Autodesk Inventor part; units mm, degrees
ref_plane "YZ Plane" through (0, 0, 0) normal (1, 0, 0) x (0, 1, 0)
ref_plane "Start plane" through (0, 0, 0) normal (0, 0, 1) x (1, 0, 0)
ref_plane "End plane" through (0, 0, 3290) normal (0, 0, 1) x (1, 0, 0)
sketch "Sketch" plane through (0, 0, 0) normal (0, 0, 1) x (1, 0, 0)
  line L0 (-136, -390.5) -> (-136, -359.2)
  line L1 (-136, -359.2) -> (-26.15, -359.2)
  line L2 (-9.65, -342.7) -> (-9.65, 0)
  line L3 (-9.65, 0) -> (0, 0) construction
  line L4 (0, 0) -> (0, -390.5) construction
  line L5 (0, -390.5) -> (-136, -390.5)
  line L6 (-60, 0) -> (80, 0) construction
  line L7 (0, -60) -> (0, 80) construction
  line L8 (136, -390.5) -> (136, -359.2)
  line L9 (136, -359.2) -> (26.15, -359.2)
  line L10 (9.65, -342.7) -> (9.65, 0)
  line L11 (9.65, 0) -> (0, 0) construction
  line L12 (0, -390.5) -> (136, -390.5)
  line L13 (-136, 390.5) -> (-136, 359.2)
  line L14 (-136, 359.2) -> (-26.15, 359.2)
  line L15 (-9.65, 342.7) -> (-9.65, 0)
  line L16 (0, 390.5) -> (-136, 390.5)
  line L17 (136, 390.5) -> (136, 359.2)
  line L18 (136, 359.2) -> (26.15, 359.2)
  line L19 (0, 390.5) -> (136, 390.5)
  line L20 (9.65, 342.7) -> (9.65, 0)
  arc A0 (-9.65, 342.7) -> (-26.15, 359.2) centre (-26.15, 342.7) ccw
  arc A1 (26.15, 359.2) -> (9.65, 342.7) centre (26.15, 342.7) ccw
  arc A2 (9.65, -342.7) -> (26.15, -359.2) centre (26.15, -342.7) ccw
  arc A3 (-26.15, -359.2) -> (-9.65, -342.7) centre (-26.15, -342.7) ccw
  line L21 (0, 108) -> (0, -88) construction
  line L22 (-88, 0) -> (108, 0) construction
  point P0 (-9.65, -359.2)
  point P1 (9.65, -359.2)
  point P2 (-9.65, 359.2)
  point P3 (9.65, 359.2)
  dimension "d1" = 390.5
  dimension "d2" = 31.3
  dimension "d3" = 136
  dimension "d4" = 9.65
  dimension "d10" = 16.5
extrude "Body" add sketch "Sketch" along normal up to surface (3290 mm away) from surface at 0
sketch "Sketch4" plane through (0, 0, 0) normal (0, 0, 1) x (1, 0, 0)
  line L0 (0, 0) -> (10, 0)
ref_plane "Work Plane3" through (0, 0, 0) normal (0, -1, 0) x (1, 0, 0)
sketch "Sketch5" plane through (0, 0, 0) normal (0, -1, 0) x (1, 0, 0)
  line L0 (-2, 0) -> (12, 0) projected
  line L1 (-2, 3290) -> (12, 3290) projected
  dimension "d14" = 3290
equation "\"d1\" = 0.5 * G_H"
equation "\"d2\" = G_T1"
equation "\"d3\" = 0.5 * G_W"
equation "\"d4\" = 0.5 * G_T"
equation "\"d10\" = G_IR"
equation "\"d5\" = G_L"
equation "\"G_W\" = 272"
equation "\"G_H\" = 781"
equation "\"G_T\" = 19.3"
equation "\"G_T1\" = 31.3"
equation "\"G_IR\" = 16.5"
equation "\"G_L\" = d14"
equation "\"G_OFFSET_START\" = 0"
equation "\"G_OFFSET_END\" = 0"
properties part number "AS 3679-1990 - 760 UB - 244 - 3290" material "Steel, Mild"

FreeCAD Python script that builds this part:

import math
import FreeCAD as App
import Part
import Sketcher
from FreeCAD import Vector

doc = App.newDocument("Part")
body = doc.addObject("PartDesign::Body", "Body")

# Sketch on XY plane
sketch1 = body.newObject("Sketcher::SketchObject", "Sketch")
sketch1.AttachmentSupport = (doc.getObject("XY_Plane"), [""])
sketch1.MapMode = "FlatFace"
sketch1.addGeometry([
    Part.LineSegment(Vector(-136, -359.2, 0), Vector(-136, -390.5, 0)),  # 0
    Part.LineSegment(Vector(-136, -390.5, 0), Vector(136, -390.5, 0)),  # 1
    Part.LineSegment(Vector(136, -390.5, 0), Vector(136, -359.2, 0)),  # 2
    Part.LineSegment(Vector(136, -359.2, 0), Vector(26.15, -359.2, 0)),  # 3
    Part.ArcOfCircle(Part.Circle(Vector(26.15, -342.7, 0), Vector(0, 0, 1), 16.5), math.radians(180), math.radians(270)),  # 4
    Part.LineSegment(Vector(9.65, -342.7, 0), Vector(9.65, 342.7, 0)),  # 5
    Part.ArcOfCircle(Part.Circle(Vector(26.15, 342.7, 0), Vector(0, 0, 1), 16.5), math.radians(90), math.radians(180)),  # 6
    Part.LineSegment(Vector(26.15, 359.2, 0), Vector(136, 359.2, 0)),  # 7
    Part.LineSegment(Vector(136, 359.2, 0), Vector(136, 390.5, 0)),  # 8
    Part.LineSegment(Vector(136, 390.5, 0), Vector(-136, 390.5, 0)),  # 9
    Part.LineSegment(Vector(-136, 390.5, 0), Vector(-136, 359.2, 0)),  # 10
    Part.LineSegment(Vector(-136, 359.2, 0), Vector(-26.15, 359.2, 0)),  # 11
    Part.ArcOfCircle(Part.Circle(Vector(-26.15, 342.7, 0), Vector(0, 0, 1), 16.5), math.radians(0), math.radians(90)),  # 12
    Part.LineSegment(Vector(-9.65, 342.7, 0), Vector(-9.65, -342.7, 0)),  # 13
    Part.ArcOfCircle(Part.Circle(Vector(-26.15, -342.7, 0), Vector(0, 0, 1), 16.5), math.radians(-90), math.radians(0)),  # 14
    Part.LineSegment(Vector(-26.15, -359.2, 0), Vector(-136, -359.2, 0)),  # 15
], False)
sketch1.addConstraint([
    Sketcher.Constraint("Coincident", 0, 2, 1, 1),
    Sketcher.Constraint("Coincident", 1, 2, 2, 1),
    Sketcher.Constraint("Coincident", 2, 2, 3, 1),
    Sketcher.Constraint("Tangent", 3, 2, 4, 2),
    Sketcher.Constraint("Tangent", 4, 1, 5, 1),
    Sketcher.Constraint("Tangent", 5, 2, 6, 2),
    Sketcher.Constraint("Tangent", 6, 1, 7, 1),
    Sketcher.Constraint("Coincident", 7, 2, 8, 1),
    Sketcher.Constraint("Coincident", 8, 2, 9, 1),
    Sketcher.Constraint("Coincident", 9, 2, 10, 1),
    Sketcher.Constraint("Coincident", 10, 2, 11, 1),
    Sketcher.Constraint("Tangent", 11, 2, 12, 2),
    Sketcher.Constraint("Tangent", 12, 1, 13, 1),
    Sketcher.Constraint("Tangent", 13, 2, 14, 2),
    Sketcher.Constraint("Tangent", 14, 1, 15, 1),
    Sketcher.Constraint("Coincident", 15, 2, 0, 1),
    Sketcher.Constraint("Vertical", 0),
    Sketcher.Constraint("Horizontal", 1),
    Sketcher.Constraint("Vertical", 2),
    Sketcher.Constraint("Horizontal", 3),
    Sketcher.Constraint("Vertical", 5),
    Sketcher.Constraint("Horizontal", 7),
    Sketcher.Constraint("Vertical", 8),
    Sketcher.Constraint("Horizontal", 9),
    Sketcher.Constraint("Vertical", 10),
    Sketcher.Constraint("Horizontal", 11),
    Sketcher.Constraint("Vertical", 13),
    Sketcher.Constraint("Horizontal", 15),
    Sketcher.Constraint("Equal", 4, 6),
    Sketcher.Constraint("Equal", 6, 12),
    Sketcher.Constraint("Equal", 12, 14),
    Sketcher.Constraint("Symmetric", 4, 3, 12, 3, -1, 1),
    Sketcher.Constraint("Symmetric", 0, 2, 8, 2, -1, 1),
    Sketcher.Constraint("Symmetric", 7, 2, 10, 2, -2),
    Sketcher.Constraint("Symmetric", 2, 2, 15, 2, -2),
    Sketcher.Constraint("Radius", 4, 16.5),
    Sketcher.Constraint("DistanceY", 0, 2, 0, 1, 31.3),
    Sketcher.Constraint("DistanceX", 0, 2, -1, 1, 136.0),
    Sketcher.Constraint("DistanceY", 0, 2, -1, 1, 390.5),
    Sketcher.Constraint("DistanceX", -1, 1, 4, 1, 9.65),
])
pad1 = body.newObject("PartDesign::Pad", "Pad")
pad1.Profile = sketch1
pad1.Length = 3290

doc.recompute()
